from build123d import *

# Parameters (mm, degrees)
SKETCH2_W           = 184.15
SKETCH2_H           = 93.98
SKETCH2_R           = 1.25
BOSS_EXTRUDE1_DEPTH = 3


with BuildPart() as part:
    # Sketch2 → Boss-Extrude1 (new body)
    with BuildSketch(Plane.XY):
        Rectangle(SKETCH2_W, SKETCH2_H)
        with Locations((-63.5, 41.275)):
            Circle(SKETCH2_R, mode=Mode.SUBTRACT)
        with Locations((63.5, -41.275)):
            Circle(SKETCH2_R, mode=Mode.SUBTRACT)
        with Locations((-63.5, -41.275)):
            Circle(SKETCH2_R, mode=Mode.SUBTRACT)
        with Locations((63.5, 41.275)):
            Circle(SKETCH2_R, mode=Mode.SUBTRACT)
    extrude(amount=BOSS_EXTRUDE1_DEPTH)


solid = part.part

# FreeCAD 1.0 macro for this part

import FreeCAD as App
import Part
import Sketcher

V = App.Vector
Q = App.Units.Quantity


def add_polygon(sketch, points):
    """Adds a closed chain of lines whose ends are joined by coincident constraints."""
    first, n = sketch.GeometryCount, len(points)
    for a, b in zip(points, points[1:] + points[:1]):
        sketch.addGeometry(Part.LineSegment(App.Vector(*a, 0), App.Vector(*b, 0)), False)
    for i in range(n):
        sketch.addConstraint(Sketcher.Constraint("Coincident", first + i, 2, first + (i + 1) % n, 1))

doc = App.newDocument("Part")
body = doc.addObject("PartDesign::Body", "Body")

# Sketch on XY plane
sketch1 = body.newObject("Sketcher::SketchObject", "Sketch")
sketch1.AttachmentSupport = (doc.getObject("XY_Plane"), [""])
sketch1.MapMode = "FlatFace"
add_polygon(sketch1, [(-92.1, 47), (-92.1, -47), (92.1, -47), (92.1, 47)])  # lines 0-3
sketch1.addGeometry(Part.Circle(V(-63.5, -41.3, 0), V(0, 0, 1), 1.2), False)  # 4
sketch1.addGeometry(Part.Circle(V(63.5, -41.3, 0), V(0, 0, 1), 1.2), False)  # 5
sketch1.addGeometry(Part.Circle(V(-63.5, 41.3, 0), V(0, 0, 1), 1.2), False)  # 6
sketch1.addGeometry(Part.Circle(V(63.5, 41.3, 0), V(0, 0, 1), 1.2), False)  # 7
sketch1.addConstraint([
    Sketcher.Constraint("Vertical", 0),
    Sketcher.Constraint("Horizontal", 1),
    Sketcher.Constraint("Vertical", 2),
    Sketcher.Constraint("Horizontal", 3),
    Sketcher.Constraint("Equal", 4, 5),
    Sketcher.Constraint("Equal", 5, 6),
    Sketcher.Constraint("Equal", 6, 7),
    Sketcher.Constraint("Symmetric", 5, 3, 6, 3, -1, 1),
    Sketcher.Constraint("Symmetric", 4, 3, 7, 3, -1, 1),
    Sketcher.Constraint("Symmetric", 0, 2, 2, 2, -1, 1),
    Sketcher.Constraint("Symmetric", 4, 3, 5, 3, -2),
    Sketcher.Constraint("Diameter", 4, Q("2.5 mm")),
    Sketcher.Constraint("DistanceX", 4, 3, 5, 3, Q("127 mm")),
    Sketcher.Constraint("DistanceX", 1, 1, 1, 2, Q("184.15 mm")),
    Sketcher.Constraint("DistanceY", 0, 2, 0, 1, Q("93.98 mm")),
    Sketcher.Constraint("DistanceY", 4, 3, 6, 3, Q("82.55 mm")),
])
pad1 = body.newObject("PartDesign::Pad", "Pad")
pad1.Profile = sketch1
pad1.Length = 3

doc.recompute()
